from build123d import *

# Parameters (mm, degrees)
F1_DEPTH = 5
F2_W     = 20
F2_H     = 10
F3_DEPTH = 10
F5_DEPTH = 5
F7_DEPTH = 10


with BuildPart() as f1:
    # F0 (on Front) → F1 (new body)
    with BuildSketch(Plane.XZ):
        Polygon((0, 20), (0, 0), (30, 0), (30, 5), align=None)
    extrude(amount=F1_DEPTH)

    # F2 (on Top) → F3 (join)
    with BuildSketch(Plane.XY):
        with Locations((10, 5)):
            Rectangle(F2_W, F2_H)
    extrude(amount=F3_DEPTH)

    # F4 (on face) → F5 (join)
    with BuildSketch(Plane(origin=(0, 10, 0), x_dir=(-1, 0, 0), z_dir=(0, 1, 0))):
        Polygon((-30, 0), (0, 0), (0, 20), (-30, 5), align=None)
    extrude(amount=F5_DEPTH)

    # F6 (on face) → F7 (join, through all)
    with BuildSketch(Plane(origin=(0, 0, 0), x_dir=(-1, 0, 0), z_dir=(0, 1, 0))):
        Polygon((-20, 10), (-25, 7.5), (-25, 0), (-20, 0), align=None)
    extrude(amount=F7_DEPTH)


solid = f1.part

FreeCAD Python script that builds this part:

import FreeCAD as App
import Part
import Sketcher
from FreeCAD import Vector
Q = App.Units.Quantity

doc = App.newDocument("Part")
body = doc.addObject("PartDesign::Body", "Body")

# Sketch on XZ plane
sketch1 = body.newObject("Sketcher::SketchObject", "Sketch")
sketch1.AttachmentSupport = (doc.getObject("XZ_Plane"), [""])
sketch1.MapMode = "FlatFace"
sketch1.addGeometry(Part.LineSegment(Vector(0, 20, 0), Vector(0, 0, 0)), False)
sketch1.addGeometry(Part.LineSegment(Vector(0, 0, 0), Vector(30, 0, 0)), False)
sketch1.addGeometry(Part.LineSegment(Vector(30, 0, 0), Vector(30, 5, 0)), False)
sketch1.addGeometry(Part.LineSegment(Vector(30, 5, 0), Vector(0, 20, 0)), False)
sketch1.addConstraint(Sketcher.Constraint("Coincident", 0, 2, 1, 1))
sketch1.addConstraint(Sketcher.Constraint("Coincident", 1, 2, 2, 1))
sketch1.addConstraint(Sketcher.Constraint("Coincident", 2, 2, 3, 1))
sketch1.addConstraint(Sketcher.Constraint("Coincident", 3, 2, 0, 1))
sketch1.addConstraint(Sketcher.Constraint("Vertical", 0))
sketch1.addConstraint(Sketcher.Constraint("Horizontal", 1))
sketch1.addConstraint(Sketcher.Constraint("Vertical", 2))
sketch1.addConstraint(Sketcher.Constraint("Coincident", 0, 2, -1, 1))
sketch1.addConstraint(Sketcher.Constraint("DistanceX", 1, 1, 1, 2, Q("30 mm")))
sketch1.addConstraint(Sketcher.Constraint("DistanceY", 0, 2, 0, 1, Q("20 mm")))
sketch1.addConstraint(Sketcher.Constraint("DistanceY", 2, 1, 2, 2, Q("5 mm")))
pad1 = body.newObject("PartDesign::Pad", "Pad")
pad1.Profile = sketch1
pad1.Length = 5

# Sketch on XY plane
sketch2 = body.newObject("Sketcher::SketchObject", "Sketch001")
sketch2.AttachmentSupport = (doc.getObject("XY_Plane"), [""])
sketch2.MapMode = "FlatFace"
sketch2.addGeometry(Part.LineSegment(Vector(0, 10, 0), Vector(0, 0, 0)), False)
sketch2.addGeometry(Part.LineSegment(Vector(0, 0, 0), Vector(20, 0, 0)), False)
sketch2.addGeometry(Part.LineSegment(Vector(20, 0, 0), Vector(20, 10, 0)), False)
sketch2.addGeometry(Part.LineSegment(Vector(20, 10, 0), Vector(0, 10, 0)), False)
sketch2.addConstraint(Sketcher.Constraint("Coincident", 0, 2, 1, 1))
sketch2.addConstraint(Sketcher.Constraint("Coincident", 1, 2, 2, 1))
sketch2.addConstraint(Sketcher.Constraint("Coincident", 2, 2, 3, 1))
sketch2.addConstraint(Sketcher.Constraint("Coincident", 3, 2, 0, 1))
sketch2.addConstraint(Sketcher.Constraint("Vertical", 0))
sketch2.addConstraint(Sketcher.Constraint("Horizontal", 1))
sketch2.addConstraint(Sketcher.Constraint("Vertical", 2))
sketch2.addConstraint(Sketcher.Constraint("Horizontal", 3))
sketch2.addConstraint(Sketcher.Constraint("Coincident", 0, 2, -1, 1))
sketch2.addConstraint(Sketcher.Constraint("DistanceX", 1, 1, 1, 2, Q("20 mm")))
sketch2.addConstraint(Sketcher.Constraint("DistanceY", 0, 2, 0, 1, Q("10 mm")))
pad2 = body.newObject("PartDesign::Pad", "Pad001")
pad2.Profile = sketch2
pad2.Length = 10

# Sketch on XZ plane
sketch3 = body.newObject("Sketcher::SketchObject", "Sketch002")
sketch3.AttachmentSupport = (doc.getObject("XZ_Plane"), [""])
sketch3.MapMode = "FlatFace"
sketch3.AttachmentOffset = App.Placement(Vector(0, 0, -10), App.Rotation())
sketch3.addGeometry(Part.LineSegment(Vector(30, 0, 0), Vector(0, 0, 0)), False)
sketch3.addGeometry(Part.LineSegment(Vector(0, 0, 0), Vector(0, 20, 0)), False)
sketch3.addGeometry(Part.LineSegment(Vector(0, 20, 0), Vector(30, 5, 0)), False)
sketch3.addGeometry(Part.LineSegment(Vector(30, 5, 0), Vector(30, 0, 0)), False)
sketch3.addConstraint(Sketcher.Constraint("Coincident", 0, 2, 1, 1))
sketch3.addConstraint(Sketcher.Constraint("Coincident", 1, 2, 2, 1))
sketch3.addConstraint(Sketcher.Constraint("Coincident", 2, 2, 3, 1))
sketch3.addConstraint(Sketcher.Constraint("Coincident", 3, 2, 0, 1))
sketch3.addConstraint(Sketcher.Constraint("Horizontal", 0))
sketch3.addConstraint(Sketcher.Constraint("Vertical", 1))
sketch3.addConstraint(Sketcher.Constraint("Vertical", 3))
sketch3.addConstraint(Sketcher.Constraint("Coincident", 0, 2, -1, 1))
sketch3.addConstraint(Sketcher.Constraint("DistanceX", 0, 2, 0, 1, Q("30 mm")))
sketch3.addConstraint(Sketcher.Constraint("DistanceY", 1, 1, 1, 2, Q("20 mm")))
sketch3.addConstraint(Sketcher.Constraint("DistanceY", 3, 2, 3, 1, Q("5 mm")))
pad3 = body.newObject("PartDesign::Pad", "Pad002")
pad3.Profile = sketch3
pad3.Length = 5
pad3.Reversed = True

# Sketch on XZ plane
sketch4 = body.newObject("Sketcher::SketchObject", "Sketch003")
sketch4.AttachmentSupport = (doc.getObject("XZ_Plane"), [""])
sketch4.MapMode = "FlatFace"
sketch4.addGeometry(Part.LineSegment(Vector(20, 10, 0), Vector(25, 8, 0)), False)
sketch4.addGeometry(Part.LineSegment(Vector(25, 8, 0), Vector(25, 0, 0)), False)
sketch4.addGeometry(Part.LineSegment(Vector(25, 0, 0), Vector(20, 0, 0)), False)
sketch4.addGeometry(Part.LineSegment(Vector(20, 0, 0), Vector(20, 10, 0)), False)
sketch4.addConstraint(Sketcher.Constraint("Coincident", 0, 2, 1, 1))
sketch4.addConstraint(Sketcher.Constraint("Coincident", 1, 2, 2, 1))
sketch4.addConstraint(Sketcher.Constraint("Coincident", 2, 2, 3, 1))
sketch4.addConstraint(Sketcher.Constraint("Coincident", 3, 2, 0, 1))
sketch4.addConstraint(Sketcher.Constraint("Vertical", 1))
sketch4.addConstraint(Sketcher.Constraint("Horizontal", 2))
sketch4.addConstraint(Sketcher.Constraint("Vertical", 3))
sketch4.addConstraint(Sketcher.Constraint("PointOnObject", 1, 2, -1))
sketch4.addConstraint(Sketcher.Constraint("DistanceX", 2, 2, 2, 1, Q("5 mm")))
sketch4.addConstraint(Sketcher.Constraint("DistanceY", 3, 1, 3, 2, Q("10 mm")))
sketch4.addConstraint(Sketcher.Constraint("DistanceY", 1, 2, 1, 1, Q("7.5 mm")))
sketch4.addConstraint(Sketcher.Constraint("DistanceX", -1, 1, 0, 2, Q("25 mm")))
pad4 = body.newObject("PartDesign::Pad", "Pad003")
pad4.Profile = sketch4
pad4.Type = "UpToLast"
pad4.Reversed = True

doc.recompute()
